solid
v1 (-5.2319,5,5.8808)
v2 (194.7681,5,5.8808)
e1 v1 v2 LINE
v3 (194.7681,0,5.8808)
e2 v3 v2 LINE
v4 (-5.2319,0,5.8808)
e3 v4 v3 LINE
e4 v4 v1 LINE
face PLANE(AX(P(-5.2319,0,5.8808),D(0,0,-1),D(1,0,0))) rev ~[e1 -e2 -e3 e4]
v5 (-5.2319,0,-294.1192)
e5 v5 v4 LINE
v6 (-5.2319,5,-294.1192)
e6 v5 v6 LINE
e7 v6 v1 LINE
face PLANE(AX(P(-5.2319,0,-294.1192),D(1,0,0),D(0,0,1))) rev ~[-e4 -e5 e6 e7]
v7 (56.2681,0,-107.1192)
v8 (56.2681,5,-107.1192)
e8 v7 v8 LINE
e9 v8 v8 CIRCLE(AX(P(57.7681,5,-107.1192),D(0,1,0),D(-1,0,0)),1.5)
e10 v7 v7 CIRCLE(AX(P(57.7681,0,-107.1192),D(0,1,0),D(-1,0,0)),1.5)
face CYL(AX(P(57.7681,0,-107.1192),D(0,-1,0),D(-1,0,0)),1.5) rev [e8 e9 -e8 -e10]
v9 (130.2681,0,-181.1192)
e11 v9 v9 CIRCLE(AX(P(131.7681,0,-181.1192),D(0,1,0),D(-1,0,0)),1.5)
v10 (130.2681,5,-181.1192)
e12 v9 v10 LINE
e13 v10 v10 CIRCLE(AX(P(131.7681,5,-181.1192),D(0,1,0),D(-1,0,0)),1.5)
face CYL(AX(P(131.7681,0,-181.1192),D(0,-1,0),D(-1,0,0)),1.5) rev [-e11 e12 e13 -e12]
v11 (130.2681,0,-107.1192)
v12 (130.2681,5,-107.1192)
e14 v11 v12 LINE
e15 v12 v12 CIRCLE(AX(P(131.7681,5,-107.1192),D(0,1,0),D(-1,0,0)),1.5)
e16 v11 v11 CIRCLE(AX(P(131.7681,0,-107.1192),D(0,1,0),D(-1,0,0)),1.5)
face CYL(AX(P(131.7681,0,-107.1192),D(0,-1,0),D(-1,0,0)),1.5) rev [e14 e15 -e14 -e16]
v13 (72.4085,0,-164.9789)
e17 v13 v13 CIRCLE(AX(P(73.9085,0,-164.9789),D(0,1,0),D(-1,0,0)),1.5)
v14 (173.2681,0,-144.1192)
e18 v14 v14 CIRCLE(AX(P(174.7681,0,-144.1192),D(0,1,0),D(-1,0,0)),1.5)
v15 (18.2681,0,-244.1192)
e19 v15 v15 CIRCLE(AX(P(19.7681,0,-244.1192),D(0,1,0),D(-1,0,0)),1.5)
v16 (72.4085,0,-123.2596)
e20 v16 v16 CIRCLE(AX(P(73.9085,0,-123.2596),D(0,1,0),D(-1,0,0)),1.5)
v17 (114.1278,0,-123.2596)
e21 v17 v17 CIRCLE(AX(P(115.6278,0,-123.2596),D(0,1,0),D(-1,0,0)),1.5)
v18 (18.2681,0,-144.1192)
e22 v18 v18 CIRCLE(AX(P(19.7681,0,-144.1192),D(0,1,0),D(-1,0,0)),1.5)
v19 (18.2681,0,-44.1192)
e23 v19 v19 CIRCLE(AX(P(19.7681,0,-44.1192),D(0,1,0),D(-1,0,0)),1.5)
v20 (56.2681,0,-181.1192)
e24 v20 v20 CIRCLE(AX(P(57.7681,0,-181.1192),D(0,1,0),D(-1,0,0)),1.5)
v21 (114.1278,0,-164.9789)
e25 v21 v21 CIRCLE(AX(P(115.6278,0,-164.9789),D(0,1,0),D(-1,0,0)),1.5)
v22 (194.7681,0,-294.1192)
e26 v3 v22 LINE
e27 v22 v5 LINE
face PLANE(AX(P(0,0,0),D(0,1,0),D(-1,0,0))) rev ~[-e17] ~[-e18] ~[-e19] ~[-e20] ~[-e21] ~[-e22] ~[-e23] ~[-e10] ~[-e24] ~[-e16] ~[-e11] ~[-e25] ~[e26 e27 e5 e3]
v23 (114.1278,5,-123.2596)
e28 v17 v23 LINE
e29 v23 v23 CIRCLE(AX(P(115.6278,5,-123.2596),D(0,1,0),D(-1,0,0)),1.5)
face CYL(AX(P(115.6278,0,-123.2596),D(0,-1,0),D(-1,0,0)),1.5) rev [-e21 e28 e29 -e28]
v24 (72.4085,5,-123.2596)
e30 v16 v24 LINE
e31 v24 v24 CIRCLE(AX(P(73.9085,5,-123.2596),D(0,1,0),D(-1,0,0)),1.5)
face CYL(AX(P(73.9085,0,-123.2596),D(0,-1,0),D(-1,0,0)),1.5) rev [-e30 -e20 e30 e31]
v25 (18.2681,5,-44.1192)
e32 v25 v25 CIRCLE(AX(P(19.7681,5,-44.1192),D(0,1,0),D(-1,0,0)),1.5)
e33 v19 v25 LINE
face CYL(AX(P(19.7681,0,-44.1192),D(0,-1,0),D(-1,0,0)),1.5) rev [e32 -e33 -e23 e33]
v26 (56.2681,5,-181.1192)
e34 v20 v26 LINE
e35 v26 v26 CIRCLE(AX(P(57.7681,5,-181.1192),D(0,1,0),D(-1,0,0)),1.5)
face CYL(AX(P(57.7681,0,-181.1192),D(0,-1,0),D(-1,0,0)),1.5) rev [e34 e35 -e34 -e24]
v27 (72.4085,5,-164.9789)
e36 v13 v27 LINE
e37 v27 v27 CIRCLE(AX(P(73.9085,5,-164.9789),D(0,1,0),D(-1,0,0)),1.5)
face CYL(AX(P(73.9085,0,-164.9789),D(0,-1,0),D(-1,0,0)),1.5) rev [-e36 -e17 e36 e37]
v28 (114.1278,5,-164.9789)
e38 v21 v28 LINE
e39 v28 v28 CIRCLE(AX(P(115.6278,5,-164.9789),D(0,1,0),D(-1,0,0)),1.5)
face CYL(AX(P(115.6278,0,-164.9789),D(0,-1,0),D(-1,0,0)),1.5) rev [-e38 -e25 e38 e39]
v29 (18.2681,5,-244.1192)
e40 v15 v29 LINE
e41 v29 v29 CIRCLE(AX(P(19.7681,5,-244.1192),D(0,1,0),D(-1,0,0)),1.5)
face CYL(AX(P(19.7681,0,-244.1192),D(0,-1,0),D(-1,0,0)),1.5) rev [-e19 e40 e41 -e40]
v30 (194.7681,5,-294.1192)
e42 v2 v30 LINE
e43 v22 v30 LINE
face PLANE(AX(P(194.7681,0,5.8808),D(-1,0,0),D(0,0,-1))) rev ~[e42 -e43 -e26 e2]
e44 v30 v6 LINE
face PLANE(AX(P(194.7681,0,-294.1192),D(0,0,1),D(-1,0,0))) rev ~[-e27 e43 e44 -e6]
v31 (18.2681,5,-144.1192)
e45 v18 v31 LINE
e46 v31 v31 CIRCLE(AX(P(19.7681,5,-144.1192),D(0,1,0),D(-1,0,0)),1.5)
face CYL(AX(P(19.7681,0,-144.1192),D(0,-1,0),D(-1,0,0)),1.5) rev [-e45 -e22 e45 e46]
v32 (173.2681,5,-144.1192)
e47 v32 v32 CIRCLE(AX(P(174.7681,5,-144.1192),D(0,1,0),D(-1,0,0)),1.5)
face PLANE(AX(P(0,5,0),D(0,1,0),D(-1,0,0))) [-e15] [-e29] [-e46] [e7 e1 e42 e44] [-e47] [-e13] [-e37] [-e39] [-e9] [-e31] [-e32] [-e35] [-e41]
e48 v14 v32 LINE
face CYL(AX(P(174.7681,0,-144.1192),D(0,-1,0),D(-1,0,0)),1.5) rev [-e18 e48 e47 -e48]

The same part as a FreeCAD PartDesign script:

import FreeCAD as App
import Part
import Sketcher

doc = App.newDocument("Part")
body = doc.addObject("PartDesign::Body", "Body")

# Sketch on XZ plane
sketch1 = doc.addObject("Sketcher::SketchObject", "Sketch")
body.addObject(sketch1)
sketch1.AttachmentSupport = (doc.XZ_Plane, [""])
sketch1.MapMode = "FlatFace"
sketch1.addGeometry(Part.LineSegment(App.Vector(-5.2, -294.1, 0), App.Vector(-5.2, 5.9, 0)), False)
sketch1.addGeometry(Part.LineSegment(App.Vector(-5.2, 5.9, 0), App.Vector(194.8, 5.9, 0)), False)
sketch1.addGeometry(Part.LineSegment(App.Vector(194.8, 5.9, 0), App.Vector(194.8, -294.1, 0)), False)
sketch1.addGeometry(Part.LineSegment(App.Vector(194.8, -294.1, 0), App.Vector(-5.2, -294.1, 0)), False)
sketch1.addGeometry(Part.Circle(App.Vector(174.8, -144.1, 0), App.Vector(0, 0, 1), 1.5), False)
sketch1.addGeometry(Part.Circle(App.Vector(131.8, -181.1, 0), App.Vector(0, 0, 1), 1.5), False)
sketch1.addGeometry(Part.Circle(App.Vector(115.6, -165, 0), App.Vector(0, 0, 1), 1.5), False)
sketch1.addGeometry(Part.Circle(App.Vector(19.8, -244.1, 0), App.Vector(0, 0, 1), 1.5), False)
sketch1.addGeometry(Part.Circle(App.Vector(73.9, -165, 0), App.Vector(0, 0, 1), 1.5), False)
sketch1.addGeometry(Part.Circle(App.Vector(57.8, -181.1, 0), App.Vector(0, 0, 1), 1.5), False)
sketch1.addGeometry(Part.Circle(App.Vector(19.8, -144.1, 0), App.Vector(0, 0, 1), 1.5), False)
sketch1.addGeometry(Part.Circle(App.Vector(131.8, -107.1, 0), App.Vector(0, 0, 1), 1.5), False)
sketch1.addGeometry(Part.Circle(App.Vector(115.6, -123.3, 0), App.Vector(0, 0, 1), 1.5), False)
sketch1.addGeometry(Part.Circle(App.Vector(73.9, -123.3, 0), App.Vector(0, 0, 1), 1.5), False)
sketch1.addGeometry(Part.Circle(App.Vector(57.8, -107.1, 0), App.Vector(0, 0, 1), 1.5), False)
sketch1.addGeometry(Part.Circle(App.Vector(19.8, -44.1, 0), App.Vector(0, 0, 1), 1.5), False)
sketch1.addConstraint(Sketcher.Constraint("Coincident", 0, 2, 1, 1))
sketch1.addConstraint(Sketcher.Constraint("Coincident", 1, 2, 2, 1))
sketch1.addConstraint(Sketcher.Constraint("Coincident", 2, 2, 3, 1))
sketch1.addConstraint(Sketcher.Constraint("Coincident", 3, 2, 0, 1))
sketch1.addConstraint(Sketcher.Constraint("Vertical", 0))
sketch1.addConstraint(Sketcher.Constraint("Horizontal", 1))
sketch1.addConstraint(Sketcher.Constraint("Vertical", 2))
sketch1.addConstraint(Sketcher.Constraint("Horizontal", 3))
sketch1.addConstraint(Sketcher.Constraint("Equal", 4, 5))
sketch1.addConstraint(Sketcher.Constraint("Equal", 5, 6))
sketch1.addConstraint(Sketcher.Constraint("Equal", 6, 7))
sketch1.addConstraint(Sketcher.Constraint("Equal", 7, 8))
sketch1.addConstraint(Sketcher.Constraint("Equal", 8, 9))
sketch1.addConstraint(Sketcher.Constraint("Equal", 9, 10))
sketch1.addConstraint(Sketcher.Constraint("Equal", 10, 11))
sketch1.addConstraint(Sketcher.Constraint("Equal", 11, 12))
sketch1.addConstraint(Sketcher.Constraint("Equal", 12, 13))
sketch1.addConstraint(Sketcher.Constraint("Equal", 13, 14))
sketch1.addConstraint(Sketcher.Constraint("Equal", 14, 15))
sketch1.addConstraint(Sketcher.Constraint("Horizontal", 6, 3, 8, 3))
sketch1.addConstraint(Sketcher.Constraint("Horizontal", 5, 3, 9, 3))
sketch1.addConstraint(Sketcher.Constraint("Horizontal", 4, 3, 10, 3))
sketch1.addConstraint(Sketcher.Constraint("Horizontal", 12, 3, 13, 3))
sketch1.addConstraint(Sketcher.Constraint("Horizontal", 11, 3, 14, 3))
sketch1.addConstraint(Sketcher.Constraint("Vertical", 7, 3, 10, 3))
sketch1.addConstraint(Sketcher.Constraint("Vertical", 5, 3, 11, 3))
sketch1.addConstraint(Sketcher.Constraint("Vertical", 6, 3, 12, 3))
sketch1.addConstraint(Sketcher.Constraint("Vertical", 8, 3, 13, 3))
sketch1.addConstraint(Sketcher.Constraint("Vertical", 9, 3, 14, 3))
sketch1.addConstraint(Sketcher.Constraint("Vertical", 10, 3, 15, 3))
sketch1.addConstraint(Sketcher.Constraint("Diameter", 4, 3.0))
sketch1.addConstraint(Sketcher.Constraint("DistanceX", 1, 1, 1, 2, 200.0))
sketch1.addConstraint(Sketcher.Constraint("DistanceY", 0, 1, 0, 2, 300.0))
sketch1.addConstraint(Sketcher.Constraint("DistanceY", 5, 3, 4, 3, 37.0))
sketch1.addConstraint(Sketcher.Constraint("DistanceY", 7, 3, 4, 3, 100.0))
sketch1.addConstraint(Sketcher.Constraint("DistanceY", 4, 3, 11, 3, 37.0))
sketch1.addConstraint(Sketcher.Constraint("DistanceY", 10, 3, 15, 3, 100.0))
sketch1.addConstraint(Sketcher.Constraint("DistanceX", 0, 2, 15, 3, 25.0))
sketch1.addConstraint(Sketcher.Constraint("DistanceY", 15, 3, 0, 2, 50.0))
sketch1.addConstraint(Sketcher.Constraint("DistanceX", 4, 3, 1, 2, 20.0))
sketch1.addConstraint(Sketcher.Constraint("DistanceX", 5, 3, 4, 3, 43.0))
sketch1.addConstraint(Sketcher.Constraint("DistanceX", 7, 3, 9, 3, 38.0))
sketch1.addConstraint(Sketcher.Constraint("DistanceY", 7, 3, 6, 3, 79.1403))
sketch1.addConstraint(Sketcher.Constraint("DistanceY", 13, 3, 15, 3, 79.1404))
sketch1.addConstraint(Sketcher.Constraint("DistanceX", 0, 2, 13, 3, 79.1404))
sketch1.addConstraint(Sketcher.Constraint("DistanceX", 12, 3, 1, 2, 79.1403))
sketch1.addConstraint(Sketcher.Constraint("DistanceX", -1, 1, 4, 3, 174.768))
sketch1.addConstraint(Sketcher.Constraint("DistanceY", 6, 3, -1, 1, 164.979))
pad1 = doc.addObject("PartDesign::Pad", "Pad")
body.addObject(pad1)
pad1.Profile = sketch1
pad1.Length = 5
pad1.Reversed = True

doc.recompute()
